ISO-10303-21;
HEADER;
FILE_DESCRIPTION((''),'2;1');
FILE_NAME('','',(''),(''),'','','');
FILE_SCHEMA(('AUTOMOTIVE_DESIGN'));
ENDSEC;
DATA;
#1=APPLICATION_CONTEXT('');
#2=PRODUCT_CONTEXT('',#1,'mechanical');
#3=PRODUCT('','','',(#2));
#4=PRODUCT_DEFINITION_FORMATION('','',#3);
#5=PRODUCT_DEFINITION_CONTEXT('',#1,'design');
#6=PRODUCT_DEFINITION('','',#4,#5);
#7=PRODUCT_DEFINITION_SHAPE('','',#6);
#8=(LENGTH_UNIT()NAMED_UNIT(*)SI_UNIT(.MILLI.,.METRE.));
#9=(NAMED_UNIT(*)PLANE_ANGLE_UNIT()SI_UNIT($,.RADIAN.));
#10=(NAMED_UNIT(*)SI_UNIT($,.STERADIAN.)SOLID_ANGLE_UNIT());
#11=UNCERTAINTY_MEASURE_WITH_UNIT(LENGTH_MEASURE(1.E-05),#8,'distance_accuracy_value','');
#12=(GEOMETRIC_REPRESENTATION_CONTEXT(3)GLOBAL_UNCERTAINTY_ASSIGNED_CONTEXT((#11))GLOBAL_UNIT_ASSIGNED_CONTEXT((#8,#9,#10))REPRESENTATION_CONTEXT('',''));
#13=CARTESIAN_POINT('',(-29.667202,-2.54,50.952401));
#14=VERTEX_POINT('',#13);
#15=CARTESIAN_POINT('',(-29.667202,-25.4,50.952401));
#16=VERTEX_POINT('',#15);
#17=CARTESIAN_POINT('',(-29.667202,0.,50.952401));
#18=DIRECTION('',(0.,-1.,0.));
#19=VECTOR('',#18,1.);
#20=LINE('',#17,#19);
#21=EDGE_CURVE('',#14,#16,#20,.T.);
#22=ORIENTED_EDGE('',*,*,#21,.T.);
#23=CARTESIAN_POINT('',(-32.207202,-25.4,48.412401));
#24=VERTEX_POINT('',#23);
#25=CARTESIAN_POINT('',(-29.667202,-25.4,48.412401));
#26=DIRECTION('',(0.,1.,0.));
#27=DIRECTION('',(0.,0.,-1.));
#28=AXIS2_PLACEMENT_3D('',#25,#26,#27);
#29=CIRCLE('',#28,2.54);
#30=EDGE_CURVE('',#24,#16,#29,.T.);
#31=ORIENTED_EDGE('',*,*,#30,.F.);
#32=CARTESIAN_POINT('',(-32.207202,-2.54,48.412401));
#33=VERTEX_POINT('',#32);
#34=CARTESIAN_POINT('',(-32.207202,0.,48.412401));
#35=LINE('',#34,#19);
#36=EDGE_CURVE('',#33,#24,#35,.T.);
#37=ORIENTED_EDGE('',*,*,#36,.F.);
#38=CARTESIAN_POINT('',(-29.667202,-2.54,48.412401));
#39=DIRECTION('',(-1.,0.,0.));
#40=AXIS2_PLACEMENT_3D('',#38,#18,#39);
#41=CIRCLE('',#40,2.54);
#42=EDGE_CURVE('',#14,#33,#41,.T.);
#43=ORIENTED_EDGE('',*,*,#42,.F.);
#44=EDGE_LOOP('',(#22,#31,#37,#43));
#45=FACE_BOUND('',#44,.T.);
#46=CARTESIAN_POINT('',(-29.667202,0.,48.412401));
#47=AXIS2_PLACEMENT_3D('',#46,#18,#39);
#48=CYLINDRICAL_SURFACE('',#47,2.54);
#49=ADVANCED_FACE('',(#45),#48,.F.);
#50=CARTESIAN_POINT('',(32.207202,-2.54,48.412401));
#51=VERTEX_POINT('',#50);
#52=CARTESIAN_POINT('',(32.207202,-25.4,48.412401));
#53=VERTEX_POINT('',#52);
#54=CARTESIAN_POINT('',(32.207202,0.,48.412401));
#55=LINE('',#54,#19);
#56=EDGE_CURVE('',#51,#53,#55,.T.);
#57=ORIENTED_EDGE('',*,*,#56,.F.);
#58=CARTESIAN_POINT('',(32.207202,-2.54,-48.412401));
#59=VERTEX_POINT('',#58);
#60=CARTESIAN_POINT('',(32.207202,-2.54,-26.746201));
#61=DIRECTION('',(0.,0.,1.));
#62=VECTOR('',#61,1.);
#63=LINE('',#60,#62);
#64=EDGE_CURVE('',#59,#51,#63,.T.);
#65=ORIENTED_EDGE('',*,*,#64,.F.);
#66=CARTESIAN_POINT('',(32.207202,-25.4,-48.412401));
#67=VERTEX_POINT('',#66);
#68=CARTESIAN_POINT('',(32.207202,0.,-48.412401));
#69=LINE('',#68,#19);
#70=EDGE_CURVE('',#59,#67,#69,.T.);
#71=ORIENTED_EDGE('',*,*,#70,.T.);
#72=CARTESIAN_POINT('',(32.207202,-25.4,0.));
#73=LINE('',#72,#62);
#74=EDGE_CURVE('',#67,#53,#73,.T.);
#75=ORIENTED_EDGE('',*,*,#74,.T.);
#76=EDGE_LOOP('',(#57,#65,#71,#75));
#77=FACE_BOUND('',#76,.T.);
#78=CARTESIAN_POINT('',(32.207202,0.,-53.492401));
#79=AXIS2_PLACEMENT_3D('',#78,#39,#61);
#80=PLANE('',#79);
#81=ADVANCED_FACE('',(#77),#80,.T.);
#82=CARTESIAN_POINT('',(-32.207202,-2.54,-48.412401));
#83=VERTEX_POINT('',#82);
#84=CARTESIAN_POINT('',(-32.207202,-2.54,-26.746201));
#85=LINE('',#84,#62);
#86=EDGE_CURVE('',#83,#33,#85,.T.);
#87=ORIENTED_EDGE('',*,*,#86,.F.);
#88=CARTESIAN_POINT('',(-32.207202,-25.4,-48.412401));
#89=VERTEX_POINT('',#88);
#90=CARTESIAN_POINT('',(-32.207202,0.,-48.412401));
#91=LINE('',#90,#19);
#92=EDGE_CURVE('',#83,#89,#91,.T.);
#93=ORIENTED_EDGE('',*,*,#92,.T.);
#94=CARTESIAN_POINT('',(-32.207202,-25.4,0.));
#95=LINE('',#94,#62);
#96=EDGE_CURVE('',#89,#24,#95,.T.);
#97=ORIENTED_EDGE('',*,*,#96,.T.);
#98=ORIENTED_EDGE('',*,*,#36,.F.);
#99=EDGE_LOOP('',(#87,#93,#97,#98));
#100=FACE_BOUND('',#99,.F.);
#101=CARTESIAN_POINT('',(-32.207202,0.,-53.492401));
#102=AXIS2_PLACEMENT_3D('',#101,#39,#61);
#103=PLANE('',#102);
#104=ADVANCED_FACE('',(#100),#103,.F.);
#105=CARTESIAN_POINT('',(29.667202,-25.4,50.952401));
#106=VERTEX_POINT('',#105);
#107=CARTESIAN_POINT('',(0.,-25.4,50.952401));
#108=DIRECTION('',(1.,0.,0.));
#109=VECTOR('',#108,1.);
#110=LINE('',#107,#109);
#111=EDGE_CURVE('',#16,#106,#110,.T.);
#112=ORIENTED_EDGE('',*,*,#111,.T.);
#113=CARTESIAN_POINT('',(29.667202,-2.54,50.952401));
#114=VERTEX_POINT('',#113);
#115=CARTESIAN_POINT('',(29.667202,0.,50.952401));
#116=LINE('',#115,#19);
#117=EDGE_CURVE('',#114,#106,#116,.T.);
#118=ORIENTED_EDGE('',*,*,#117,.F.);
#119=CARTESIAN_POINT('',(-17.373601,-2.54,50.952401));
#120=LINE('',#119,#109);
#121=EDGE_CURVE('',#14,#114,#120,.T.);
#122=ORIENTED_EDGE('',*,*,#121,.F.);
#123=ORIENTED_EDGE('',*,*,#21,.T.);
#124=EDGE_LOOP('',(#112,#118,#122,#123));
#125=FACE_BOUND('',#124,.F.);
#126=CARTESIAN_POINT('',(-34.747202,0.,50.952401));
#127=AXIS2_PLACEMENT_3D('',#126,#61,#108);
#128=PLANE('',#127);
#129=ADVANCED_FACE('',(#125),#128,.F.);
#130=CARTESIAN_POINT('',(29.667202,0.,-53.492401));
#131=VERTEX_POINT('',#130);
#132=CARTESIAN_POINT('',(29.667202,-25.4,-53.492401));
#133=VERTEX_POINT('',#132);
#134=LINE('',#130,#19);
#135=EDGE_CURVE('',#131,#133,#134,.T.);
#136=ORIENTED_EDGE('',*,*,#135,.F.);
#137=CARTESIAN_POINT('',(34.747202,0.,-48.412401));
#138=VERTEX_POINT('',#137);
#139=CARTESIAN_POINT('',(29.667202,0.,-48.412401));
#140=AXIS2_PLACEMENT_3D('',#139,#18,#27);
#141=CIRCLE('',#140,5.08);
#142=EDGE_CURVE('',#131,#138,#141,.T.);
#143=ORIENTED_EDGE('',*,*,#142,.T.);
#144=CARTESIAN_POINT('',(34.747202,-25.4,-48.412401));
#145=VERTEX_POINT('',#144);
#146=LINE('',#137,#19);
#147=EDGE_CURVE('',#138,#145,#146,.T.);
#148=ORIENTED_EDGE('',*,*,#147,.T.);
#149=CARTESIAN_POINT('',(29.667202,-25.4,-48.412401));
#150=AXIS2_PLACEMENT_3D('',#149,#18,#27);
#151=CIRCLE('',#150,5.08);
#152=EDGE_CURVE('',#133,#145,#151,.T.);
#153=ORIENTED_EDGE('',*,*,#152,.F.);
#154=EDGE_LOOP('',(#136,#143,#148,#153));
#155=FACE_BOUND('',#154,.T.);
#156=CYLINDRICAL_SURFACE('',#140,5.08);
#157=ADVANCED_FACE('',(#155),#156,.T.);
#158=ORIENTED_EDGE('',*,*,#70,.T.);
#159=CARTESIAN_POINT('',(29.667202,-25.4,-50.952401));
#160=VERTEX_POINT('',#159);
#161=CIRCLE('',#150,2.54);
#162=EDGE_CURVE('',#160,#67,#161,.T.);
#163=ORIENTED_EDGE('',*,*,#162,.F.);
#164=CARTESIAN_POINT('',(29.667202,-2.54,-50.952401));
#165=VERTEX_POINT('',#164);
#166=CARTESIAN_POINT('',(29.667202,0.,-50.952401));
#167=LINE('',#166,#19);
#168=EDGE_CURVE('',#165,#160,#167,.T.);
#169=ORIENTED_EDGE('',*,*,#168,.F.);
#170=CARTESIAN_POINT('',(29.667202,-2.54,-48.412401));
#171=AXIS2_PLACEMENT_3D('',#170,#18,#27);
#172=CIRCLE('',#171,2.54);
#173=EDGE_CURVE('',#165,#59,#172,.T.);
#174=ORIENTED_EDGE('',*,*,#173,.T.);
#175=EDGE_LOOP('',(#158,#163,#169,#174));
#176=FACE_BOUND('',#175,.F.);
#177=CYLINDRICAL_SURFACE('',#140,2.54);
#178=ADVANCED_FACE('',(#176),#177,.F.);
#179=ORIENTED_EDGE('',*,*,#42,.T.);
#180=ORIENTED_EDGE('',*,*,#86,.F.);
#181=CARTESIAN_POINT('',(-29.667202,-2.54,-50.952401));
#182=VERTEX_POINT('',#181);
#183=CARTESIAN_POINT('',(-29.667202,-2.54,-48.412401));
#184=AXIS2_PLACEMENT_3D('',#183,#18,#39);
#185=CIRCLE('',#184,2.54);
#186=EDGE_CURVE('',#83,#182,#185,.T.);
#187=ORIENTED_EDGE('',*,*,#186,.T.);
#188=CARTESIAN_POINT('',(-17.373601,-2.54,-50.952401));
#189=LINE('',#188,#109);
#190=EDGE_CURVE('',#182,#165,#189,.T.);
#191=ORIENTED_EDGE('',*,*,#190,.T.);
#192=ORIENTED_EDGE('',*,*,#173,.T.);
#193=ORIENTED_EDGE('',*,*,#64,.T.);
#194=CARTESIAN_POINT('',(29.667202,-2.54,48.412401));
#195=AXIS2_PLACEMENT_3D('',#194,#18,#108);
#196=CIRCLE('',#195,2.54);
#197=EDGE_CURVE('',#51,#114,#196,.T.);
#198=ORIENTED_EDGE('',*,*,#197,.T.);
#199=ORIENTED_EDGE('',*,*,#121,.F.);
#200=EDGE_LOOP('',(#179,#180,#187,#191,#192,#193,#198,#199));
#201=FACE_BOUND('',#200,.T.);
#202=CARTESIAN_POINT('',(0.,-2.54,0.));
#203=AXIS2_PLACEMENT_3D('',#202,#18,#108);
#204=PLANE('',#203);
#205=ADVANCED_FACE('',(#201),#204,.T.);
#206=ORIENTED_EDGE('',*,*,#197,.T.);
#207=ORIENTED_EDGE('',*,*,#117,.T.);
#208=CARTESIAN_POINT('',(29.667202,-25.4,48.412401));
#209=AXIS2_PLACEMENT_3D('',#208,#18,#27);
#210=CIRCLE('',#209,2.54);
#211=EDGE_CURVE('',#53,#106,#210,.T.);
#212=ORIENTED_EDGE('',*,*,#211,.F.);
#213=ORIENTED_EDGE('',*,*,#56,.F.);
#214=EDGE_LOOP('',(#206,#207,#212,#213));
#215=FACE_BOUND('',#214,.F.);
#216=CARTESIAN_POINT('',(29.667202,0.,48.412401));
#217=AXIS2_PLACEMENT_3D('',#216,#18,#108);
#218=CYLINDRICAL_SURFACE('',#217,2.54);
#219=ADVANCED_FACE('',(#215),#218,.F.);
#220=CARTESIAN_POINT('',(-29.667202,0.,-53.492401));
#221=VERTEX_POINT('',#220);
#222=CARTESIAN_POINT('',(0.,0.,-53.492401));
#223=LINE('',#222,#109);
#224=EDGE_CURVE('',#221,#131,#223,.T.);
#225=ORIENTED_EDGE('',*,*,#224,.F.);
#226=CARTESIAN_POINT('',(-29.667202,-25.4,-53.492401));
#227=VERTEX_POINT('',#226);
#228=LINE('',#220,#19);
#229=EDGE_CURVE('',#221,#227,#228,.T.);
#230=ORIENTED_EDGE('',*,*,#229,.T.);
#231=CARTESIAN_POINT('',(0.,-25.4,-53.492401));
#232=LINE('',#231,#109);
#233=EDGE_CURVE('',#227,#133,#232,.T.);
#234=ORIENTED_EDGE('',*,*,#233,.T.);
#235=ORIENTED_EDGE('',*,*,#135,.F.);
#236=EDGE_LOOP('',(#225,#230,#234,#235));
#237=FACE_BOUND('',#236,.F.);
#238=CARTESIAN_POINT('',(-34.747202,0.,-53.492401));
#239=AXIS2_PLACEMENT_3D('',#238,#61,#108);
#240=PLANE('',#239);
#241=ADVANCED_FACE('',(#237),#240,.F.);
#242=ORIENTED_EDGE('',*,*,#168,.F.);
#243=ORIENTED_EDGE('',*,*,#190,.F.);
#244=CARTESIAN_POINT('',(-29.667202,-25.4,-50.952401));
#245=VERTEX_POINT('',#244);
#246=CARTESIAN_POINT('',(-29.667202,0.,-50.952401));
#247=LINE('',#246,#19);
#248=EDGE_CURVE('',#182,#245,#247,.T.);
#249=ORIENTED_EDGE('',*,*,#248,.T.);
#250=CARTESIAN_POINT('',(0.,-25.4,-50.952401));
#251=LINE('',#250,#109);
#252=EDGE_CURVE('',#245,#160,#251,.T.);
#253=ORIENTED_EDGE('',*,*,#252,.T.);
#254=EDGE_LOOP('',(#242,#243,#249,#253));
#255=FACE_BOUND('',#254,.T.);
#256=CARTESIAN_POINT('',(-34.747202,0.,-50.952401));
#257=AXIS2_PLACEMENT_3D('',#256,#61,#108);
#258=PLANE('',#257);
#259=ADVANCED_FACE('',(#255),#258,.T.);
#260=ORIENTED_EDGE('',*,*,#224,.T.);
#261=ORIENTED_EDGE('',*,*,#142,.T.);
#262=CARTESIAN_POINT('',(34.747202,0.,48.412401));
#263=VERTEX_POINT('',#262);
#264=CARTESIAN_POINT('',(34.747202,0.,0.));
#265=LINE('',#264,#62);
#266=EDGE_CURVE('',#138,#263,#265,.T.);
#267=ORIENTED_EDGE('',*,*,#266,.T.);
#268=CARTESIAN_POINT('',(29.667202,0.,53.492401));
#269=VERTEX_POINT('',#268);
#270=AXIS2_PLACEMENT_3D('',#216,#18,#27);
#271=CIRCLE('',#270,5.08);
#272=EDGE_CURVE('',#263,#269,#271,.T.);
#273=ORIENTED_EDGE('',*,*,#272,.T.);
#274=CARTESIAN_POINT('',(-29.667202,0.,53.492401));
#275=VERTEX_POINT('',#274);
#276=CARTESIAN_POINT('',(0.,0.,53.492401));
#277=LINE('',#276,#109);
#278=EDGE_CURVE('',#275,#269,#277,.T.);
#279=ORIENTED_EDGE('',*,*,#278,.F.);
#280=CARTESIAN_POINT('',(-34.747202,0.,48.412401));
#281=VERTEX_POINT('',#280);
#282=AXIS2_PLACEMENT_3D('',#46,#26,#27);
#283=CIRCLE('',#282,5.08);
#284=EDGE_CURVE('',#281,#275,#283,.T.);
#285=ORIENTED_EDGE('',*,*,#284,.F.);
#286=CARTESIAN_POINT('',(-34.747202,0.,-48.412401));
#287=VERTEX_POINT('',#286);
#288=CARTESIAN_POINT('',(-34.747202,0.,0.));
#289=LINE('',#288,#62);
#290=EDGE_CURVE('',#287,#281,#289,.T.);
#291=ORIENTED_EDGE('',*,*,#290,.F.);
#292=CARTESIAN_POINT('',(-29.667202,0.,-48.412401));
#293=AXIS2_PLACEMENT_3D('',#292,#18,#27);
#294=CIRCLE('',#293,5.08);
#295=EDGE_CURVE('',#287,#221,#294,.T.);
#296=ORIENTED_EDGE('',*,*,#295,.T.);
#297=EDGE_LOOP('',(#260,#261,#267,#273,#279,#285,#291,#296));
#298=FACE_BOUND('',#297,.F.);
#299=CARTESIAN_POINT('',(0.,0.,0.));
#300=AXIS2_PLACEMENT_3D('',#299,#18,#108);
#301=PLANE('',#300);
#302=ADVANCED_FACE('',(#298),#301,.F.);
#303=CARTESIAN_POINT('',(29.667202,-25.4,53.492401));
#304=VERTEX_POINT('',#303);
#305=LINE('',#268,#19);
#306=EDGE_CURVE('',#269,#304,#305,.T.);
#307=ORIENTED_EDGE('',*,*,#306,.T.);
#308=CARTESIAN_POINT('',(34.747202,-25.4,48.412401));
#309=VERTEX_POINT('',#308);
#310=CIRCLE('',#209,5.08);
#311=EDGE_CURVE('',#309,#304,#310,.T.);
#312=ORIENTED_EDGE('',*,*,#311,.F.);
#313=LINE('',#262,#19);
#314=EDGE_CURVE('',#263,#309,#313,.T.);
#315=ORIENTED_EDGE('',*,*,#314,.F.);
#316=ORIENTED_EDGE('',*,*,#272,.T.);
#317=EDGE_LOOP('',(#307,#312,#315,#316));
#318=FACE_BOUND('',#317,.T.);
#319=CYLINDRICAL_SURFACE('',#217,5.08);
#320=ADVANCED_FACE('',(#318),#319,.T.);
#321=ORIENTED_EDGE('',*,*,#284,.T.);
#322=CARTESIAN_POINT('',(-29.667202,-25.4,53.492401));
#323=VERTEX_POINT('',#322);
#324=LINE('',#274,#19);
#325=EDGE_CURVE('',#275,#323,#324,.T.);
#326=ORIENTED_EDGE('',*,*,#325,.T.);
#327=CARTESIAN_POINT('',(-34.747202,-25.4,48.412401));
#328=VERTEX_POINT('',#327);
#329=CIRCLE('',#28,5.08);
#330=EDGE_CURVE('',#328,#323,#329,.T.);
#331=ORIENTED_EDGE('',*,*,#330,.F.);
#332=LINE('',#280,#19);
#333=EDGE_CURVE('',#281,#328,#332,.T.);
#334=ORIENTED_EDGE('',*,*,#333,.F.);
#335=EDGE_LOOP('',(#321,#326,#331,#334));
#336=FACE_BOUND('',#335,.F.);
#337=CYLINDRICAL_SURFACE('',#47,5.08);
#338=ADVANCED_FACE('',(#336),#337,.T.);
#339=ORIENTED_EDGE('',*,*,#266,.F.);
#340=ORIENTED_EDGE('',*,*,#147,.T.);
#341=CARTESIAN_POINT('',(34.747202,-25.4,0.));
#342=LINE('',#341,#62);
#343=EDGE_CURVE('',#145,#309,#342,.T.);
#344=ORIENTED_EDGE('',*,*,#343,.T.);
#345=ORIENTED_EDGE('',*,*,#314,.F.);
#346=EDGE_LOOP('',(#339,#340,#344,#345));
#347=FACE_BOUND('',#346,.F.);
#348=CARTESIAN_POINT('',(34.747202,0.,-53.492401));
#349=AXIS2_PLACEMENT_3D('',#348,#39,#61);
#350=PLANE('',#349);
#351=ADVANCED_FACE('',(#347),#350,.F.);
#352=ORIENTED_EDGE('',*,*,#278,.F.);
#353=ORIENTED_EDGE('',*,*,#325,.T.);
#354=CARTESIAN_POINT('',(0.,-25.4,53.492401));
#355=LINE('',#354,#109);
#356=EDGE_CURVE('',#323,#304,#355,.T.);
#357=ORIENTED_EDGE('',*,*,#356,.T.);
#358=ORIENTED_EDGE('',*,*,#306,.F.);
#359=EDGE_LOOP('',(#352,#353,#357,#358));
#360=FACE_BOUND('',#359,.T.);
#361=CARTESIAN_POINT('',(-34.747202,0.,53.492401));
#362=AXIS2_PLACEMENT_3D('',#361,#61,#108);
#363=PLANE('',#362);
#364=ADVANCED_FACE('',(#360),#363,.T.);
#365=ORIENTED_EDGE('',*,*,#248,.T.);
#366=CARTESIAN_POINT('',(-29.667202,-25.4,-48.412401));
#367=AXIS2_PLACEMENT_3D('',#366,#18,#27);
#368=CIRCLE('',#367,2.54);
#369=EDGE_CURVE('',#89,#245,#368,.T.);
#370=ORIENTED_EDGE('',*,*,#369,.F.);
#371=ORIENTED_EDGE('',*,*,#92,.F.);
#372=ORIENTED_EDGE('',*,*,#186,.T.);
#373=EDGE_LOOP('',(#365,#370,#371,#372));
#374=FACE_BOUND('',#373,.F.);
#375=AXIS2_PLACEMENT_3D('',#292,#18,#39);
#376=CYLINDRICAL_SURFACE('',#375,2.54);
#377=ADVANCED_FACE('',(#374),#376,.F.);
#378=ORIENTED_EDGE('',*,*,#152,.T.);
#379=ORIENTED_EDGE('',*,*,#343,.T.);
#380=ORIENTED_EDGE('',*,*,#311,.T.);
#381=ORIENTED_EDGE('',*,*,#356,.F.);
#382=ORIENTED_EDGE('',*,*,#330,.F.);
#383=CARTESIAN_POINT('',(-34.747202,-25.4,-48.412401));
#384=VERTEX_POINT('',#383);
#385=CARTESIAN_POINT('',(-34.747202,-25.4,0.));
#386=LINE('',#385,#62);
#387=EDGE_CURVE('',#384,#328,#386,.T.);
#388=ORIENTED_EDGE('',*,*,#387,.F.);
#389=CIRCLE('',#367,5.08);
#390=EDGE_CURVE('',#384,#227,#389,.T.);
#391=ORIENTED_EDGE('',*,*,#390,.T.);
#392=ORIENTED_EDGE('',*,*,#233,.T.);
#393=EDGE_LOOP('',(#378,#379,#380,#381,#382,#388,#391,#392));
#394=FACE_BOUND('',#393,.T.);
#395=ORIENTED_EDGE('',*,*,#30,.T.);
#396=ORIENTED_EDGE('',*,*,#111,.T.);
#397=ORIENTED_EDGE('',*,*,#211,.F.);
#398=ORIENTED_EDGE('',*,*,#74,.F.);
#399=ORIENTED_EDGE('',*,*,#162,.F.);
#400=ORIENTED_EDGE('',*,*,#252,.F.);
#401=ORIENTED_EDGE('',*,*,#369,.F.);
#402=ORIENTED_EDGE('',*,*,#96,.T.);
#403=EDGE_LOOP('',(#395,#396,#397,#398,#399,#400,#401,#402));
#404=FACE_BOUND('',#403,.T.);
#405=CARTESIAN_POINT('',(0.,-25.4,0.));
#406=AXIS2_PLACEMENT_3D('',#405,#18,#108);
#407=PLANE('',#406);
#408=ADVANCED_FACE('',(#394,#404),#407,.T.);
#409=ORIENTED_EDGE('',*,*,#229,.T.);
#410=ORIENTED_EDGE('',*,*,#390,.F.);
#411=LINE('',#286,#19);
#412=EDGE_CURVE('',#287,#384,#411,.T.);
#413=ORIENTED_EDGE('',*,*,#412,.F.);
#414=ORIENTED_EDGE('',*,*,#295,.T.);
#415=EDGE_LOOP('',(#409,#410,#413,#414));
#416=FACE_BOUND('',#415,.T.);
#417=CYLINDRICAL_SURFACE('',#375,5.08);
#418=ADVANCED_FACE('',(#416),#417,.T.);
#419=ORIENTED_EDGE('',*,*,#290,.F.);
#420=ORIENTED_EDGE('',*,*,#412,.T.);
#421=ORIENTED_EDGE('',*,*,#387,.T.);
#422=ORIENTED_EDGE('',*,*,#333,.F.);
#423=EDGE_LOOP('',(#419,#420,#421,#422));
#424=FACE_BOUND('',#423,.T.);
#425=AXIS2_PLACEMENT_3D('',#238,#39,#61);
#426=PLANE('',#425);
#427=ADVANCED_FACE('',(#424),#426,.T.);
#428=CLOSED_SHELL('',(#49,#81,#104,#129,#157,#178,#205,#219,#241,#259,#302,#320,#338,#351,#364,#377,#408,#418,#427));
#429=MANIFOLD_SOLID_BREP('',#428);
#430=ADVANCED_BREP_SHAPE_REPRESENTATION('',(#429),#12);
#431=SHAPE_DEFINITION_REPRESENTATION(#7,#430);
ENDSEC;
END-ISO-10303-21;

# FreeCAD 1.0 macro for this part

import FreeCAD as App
import Part
import Sketcher
from FreeCAD import Vector
Q = App.Units.Quantity


def edges_at(feature, points):
    """Names of the edges that pass closest to the given points."""
    edges = feature.Shape.Edges
    near = lambda p: min(range(len(edges)), key=lambda i: edges[i].distToShape(Part.Vertex(*p))[0])
    return sorted({f"Edge{near(p) + 1}" for p in points})


def faces_at(feature, points):
    """Names of the faces that lie closest to the given points."""
    faces = feature.Shape.Faces
    near = lambda p: min(range(len(faces)), key=lambda i: faces[i].distToShape(Part.Vertex(*p))[0])
    return sorted({f"Face{near(p) + 1}" for p in points})


def add_polygon(sketch, points):
    """Adds a closed chain of lines whose ends are joined by coincident constraints."""
    first, n = sketch.GeometryCount, len(points)
    for a, b in zip(points, points[1:] + points[:1]):
        sketch.addGeometry(Part.LineSegment(App.Vector(*a, 0), App.Vector(*b, 0)), False)
    for i in range(n):
        sketch.addConstraint(Sketcher.Constraint("Coincident", first + i, 2, first + (i + 1) % n, 1))

doc = App.newDocument("Part")
params = doc.addObject("Spreadsheet::Sheet", "Params")
for row, (alias, value) in enumerate([
    ("sketch1_width", "2.7360002 in"),
    ("sketch1_height", "4.2120001 in"),
    ("pad1_length", "1 in"),
    ("fillet_radius", "0.2 in"),
    ("thickness_wall", "0.1 in"),
], start=1):
    params.set(f"A{row}", alias)
    params.set(f"B{row}", "=" + value)
    params.setAlias(f"B{row}", alias)

body = doc.addObject("PartDesign::Body", "Body")

# Sketch on XZ plane
sketch1 = doc.addObject("Sketcher::SketchObject", "Sketch")
body.addObject(sketch1)
sketch1.AttachmentSupport = (doc.XZ_Plane, [""])
sketch1.MapMode = "FlatFace"
add_polygon(sketch1, [(-34.747202, 53.492401), (-34.747202, -53.492401), (34.747202, -53.492401), (34.747202, 53.492401)])  # lines 0-3
sketch1.addConstraint(Sketcher.Constraint("Vertical", 0))
sketch1.addConstraint(Sketcher.Constraint("Horizontal", 1))
sketch1.addConstraint(Sketcher.Constraint("Vertical", 2))
sketch1.addConstraint(Sketcher.Constraint("Horizontal", 3))
sketch1.addConstraint(Sketcher.Constraint("Symmetric", 0, 2, 2, 2, -1, 1))
sketch1.addConstraint(Sketcher.Constraint("DistanceX", 1, 1, 1, 2, Q("2.7360002 in")))
sketch1.addConstraint(Sketcher.Constraint("DistanceY", 0, 2, 0, 1, Q("4.2120001 in")))
sketch1.setExpression("Constraints[9]", "Params.sketch1_width")
sketch1.setExpression("Constraints[10]", "Params.sketch1_height")
pad1 = doc.addObject("PartDesign::Pad", "Pad")
body.addObject(pad1)
pad1.Profile = sketch1
pad1.setExpression("Length", "Params.pad1_length")
doc.recompute()

fillet = doc.addObject("PartDesign::Fillet", "Fillet")
body.addObject(fillet)
fillet.Base = (pad1, edges_at(pad1, [
    (-34.747, -12.7, 53.492),
    (-34.747, -12.7, -53.492),
    (34.747, -12.7, 53.492),
    (34.747, -12.7, -53.492),
]))
fillet.setExpression("Radius", "Params.fillet_radius")
doc.recompute()

thickness = doc.addObject("PartDesign::Thickness", "Thickness")
body.addObject(thickness)
thickness.Base = (fillet, faces_at(fillet, [(0, -25.4, 0)]))
thickness.setExpression("Value", "Params.thickness_wall")
thickness.Reversed = True
thickness.Join = "Arc"

doc.recompute()
